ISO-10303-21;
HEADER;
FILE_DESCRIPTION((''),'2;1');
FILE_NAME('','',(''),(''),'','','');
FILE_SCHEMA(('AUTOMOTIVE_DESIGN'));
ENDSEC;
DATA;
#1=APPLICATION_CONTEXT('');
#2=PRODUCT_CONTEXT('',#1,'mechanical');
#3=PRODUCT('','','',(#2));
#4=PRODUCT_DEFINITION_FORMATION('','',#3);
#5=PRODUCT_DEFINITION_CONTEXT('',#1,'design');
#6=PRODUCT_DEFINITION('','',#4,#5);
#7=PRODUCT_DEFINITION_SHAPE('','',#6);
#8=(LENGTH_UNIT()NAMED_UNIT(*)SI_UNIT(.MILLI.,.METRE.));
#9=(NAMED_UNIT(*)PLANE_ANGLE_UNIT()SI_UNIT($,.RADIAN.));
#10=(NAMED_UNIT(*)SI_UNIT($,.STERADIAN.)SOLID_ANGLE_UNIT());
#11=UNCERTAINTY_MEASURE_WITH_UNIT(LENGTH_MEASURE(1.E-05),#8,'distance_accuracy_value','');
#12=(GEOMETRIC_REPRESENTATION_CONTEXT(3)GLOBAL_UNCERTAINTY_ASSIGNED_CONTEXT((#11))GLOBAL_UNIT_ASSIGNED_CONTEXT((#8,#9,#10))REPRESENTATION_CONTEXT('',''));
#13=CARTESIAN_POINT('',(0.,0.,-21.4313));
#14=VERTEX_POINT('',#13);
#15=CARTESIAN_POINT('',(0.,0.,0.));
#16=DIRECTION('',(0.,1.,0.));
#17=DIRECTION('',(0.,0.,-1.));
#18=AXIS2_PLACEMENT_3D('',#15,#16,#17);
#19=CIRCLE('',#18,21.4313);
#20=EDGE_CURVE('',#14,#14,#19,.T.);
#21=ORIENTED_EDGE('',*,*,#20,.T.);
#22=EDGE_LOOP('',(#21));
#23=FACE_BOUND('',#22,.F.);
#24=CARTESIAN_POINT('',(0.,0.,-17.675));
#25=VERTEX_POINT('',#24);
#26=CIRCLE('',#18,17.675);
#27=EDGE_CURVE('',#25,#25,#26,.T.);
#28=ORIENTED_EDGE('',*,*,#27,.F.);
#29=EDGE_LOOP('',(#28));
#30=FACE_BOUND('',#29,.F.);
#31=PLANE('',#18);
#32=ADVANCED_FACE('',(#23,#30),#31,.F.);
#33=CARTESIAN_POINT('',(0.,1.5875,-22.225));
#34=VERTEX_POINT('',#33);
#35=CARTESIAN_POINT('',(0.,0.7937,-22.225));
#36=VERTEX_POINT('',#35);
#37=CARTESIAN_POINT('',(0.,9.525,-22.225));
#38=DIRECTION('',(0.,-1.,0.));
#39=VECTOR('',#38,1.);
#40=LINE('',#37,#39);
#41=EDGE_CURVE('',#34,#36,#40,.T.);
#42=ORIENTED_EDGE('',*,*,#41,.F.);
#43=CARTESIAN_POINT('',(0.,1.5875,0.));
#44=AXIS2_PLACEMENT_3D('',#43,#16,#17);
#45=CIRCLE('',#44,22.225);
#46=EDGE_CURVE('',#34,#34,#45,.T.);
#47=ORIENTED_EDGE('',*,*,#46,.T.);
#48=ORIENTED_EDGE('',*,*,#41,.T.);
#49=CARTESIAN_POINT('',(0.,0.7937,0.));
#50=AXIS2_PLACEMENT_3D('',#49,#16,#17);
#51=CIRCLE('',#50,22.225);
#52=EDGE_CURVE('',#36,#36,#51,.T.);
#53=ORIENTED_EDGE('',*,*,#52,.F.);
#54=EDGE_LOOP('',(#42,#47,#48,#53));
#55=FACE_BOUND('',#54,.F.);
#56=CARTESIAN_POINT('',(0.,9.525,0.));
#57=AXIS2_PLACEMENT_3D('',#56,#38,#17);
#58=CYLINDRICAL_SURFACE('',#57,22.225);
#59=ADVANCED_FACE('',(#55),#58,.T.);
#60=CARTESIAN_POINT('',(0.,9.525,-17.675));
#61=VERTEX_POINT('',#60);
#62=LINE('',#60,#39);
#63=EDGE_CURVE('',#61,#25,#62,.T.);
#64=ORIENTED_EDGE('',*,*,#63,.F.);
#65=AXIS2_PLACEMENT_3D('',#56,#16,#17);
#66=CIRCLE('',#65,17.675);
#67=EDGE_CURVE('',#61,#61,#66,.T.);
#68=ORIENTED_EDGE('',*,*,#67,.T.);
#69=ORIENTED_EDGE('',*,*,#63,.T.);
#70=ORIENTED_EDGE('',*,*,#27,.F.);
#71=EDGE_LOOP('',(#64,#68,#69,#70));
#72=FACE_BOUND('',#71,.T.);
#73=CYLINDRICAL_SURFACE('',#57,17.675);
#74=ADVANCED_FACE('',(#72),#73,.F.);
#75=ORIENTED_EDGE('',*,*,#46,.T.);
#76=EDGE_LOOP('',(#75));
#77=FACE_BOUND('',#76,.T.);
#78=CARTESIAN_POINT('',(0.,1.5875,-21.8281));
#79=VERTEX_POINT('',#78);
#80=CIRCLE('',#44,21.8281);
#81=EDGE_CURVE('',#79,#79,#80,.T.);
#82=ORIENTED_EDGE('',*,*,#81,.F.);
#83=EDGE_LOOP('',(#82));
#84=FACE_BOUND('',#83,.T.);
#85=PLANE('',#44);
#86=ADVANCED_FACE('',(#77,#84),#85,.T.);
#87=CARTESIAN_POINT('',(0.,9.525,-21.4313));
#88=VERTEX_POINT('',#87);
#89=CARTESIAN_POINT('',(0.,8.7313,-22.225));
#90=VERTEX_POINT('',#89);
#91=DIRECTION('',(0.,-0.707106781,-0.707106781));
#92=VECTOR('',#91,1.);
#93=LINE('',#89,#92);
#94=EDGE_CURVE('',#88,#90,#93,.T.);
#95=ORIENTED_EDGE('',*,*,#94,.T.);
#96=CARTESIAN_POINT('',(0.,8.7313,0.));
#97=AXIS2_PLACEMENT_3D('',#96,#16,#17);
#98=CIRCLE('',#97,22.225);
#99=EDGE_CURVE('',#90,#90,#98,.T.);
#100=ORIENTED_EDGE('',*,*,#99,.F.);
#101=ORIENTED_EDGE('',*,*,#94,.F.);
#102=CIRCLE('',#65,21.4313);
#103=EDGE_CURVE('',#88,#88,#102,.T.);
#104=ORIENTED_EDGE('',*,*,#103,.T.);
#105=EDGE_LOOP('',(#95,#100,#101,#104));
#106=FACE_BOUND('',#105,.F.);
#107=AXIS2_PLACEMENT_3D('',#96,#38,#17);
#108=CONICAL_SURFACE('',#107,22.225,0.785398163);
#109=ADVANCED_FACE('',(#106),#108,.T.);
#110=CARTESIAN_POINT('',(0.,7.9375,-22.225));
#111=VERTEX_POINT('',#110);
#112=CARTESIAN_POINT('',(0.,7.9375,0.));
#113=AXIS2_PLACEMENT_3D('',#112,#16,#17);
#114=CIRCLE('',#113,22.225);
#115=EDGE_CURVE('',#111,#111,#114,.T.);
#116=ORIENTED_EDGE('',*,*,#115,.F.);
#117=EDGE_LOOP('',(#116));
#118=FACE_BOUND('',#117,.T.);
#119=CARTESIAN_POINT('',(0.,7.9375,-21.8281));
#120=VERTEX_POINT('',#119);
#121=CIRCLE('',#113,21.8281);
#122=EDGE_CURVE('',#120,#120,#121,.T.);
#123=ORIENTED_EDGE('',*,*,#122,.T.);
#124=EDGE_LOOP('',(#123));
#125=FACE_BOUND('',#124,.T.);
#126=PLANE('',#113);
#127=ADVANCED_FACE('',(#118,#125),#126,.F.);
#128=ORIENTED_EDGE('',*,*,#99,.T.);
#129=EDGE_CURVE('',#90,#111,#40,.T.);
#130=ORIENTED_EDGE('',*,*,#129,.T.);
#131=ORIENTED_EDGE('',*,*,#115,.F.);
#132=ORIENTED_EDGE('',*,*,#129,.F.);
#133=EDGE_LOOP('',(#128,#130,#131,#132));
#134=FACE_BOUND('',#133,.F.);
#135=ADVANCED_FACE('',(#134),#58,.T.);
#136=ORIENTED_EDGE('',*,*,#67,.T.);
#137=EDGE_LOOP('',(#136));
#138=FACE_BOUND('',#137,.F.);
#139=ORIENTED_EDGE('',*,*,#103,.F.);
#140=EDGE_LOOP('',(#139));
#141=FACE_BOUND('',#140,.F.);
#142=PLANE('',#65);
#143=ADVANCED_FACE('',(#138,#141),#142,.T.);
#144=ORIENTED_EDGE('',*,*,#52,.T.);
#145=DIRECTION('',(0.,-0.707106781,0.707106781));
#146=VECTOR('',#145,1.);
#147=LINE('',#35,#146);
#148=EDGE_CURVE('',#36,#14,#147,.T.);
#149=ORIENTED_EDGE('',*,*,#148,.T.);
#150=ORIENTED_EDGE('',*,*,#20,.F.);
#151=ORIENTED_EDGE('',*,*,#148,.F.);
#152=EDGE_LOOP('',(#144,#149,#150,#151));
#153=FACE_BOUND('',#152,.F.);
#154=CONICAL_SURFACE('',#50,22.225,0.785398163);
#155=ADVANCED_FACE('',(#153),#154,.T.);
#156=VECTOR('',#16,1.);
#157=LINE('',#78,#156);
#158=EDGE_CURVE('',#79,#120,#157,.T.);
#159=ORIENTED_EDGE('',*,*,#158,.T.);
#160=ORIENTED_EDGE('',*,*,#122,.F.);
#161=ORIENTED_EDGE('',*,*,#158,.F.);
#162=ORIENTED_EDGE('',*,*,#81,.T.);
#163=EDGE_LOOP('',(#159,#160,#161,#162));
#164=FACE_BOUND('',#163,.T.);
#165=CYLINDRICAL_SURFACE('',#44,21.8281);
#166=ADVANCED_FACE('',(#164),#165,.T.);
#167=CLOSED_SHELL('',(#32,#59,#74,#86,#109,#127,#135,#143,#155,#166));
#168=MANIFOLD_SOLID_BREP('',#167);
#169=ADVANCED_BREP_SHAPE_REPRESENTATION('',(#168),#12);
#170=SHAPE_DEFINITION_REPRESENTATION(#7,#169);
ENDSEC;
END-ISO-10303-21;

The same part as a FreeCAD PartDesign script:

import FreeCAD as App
import Part
import Sketcher
from FreeCAD import Vector
Q = App.Units.Quantity


def edges_at(feature, points):
    """Names of the edges that pass closest to the given points."""
    edges = feature.Shape.Edges
    near = lambda p: min(range(len(edges)), key=lambda i: edges[i].distToShape(Part.Vertex(*p))[0])
    return sorted({f"Edge{near(p) + 1}" for p in points})

doc = App.newDocument("Part")
body = doc.addObject("PartDesign::Body", "Body")

sketch1 = body.newObject("Sketcher::SketchObject", "Sketch")
sketch1.AttachmentSupport = (doc.getObject("YZ_Plane"), [""])
sketch1.MapMode = "FlatFace"
sketch1.addGeometry([
    Part.LineSegment(Vector(9.525, -17.675, 0), Vector(0, -17.675, 0)),
    Part.LineSegment(Vector(0, -17.675, 0), Vector(0, -22.225, 0)),
    Part.LineSegment(Vector(0, -22.225, 0), Vector(1.5875, -22.225, 0)),
    Part.LineSegment(Vector(1.5875, -22.225, 0), Vector(1.5875, -21.8281, 0)),
    Part.LineSegment(Vector(1.5875, -21.8281, 0), Vector(7.9375, -21.8281, 0)),
    Part.LineSegment(Vector(7.9375, -21.8281, 0), Vector(7.9375, -22.225, 0)),
    Part.LineSegment(Vector(7.9375, -22.225, 0), Vector(9.525, -22.225, 0)),
    Part.LineSegment(Vector(9.525, -22.225, 0), Vector(9.525, -17.675, 0)),
], False)
sketch1.addConstraint([
    Sketcher.Constraint("Coincident", 0, 2, 1, 1),
    Sketcher.Constraint("Coincident", 1, 2, 2, 1),
    Sketcher.Constraint("Coincident", 2, 2, 3, 1),
    Sketcher.Constraint("Coincident", 3, 2, 4, 1),
    Sketcher.Constraint("Coincident", 4, 2, 5, 1),
    Sketcher.Constraint("Coincident", 5, 2, 6, 1),
    Sketcher.Constraint("Coincident", 6, 2, 7, 1),
    Sketcher.Constraint("Coincident", 7, 2, 0, 1),
    Sketcher.Constraint("Horizontal", 0),
    Sketcher.Constraint("Vertical", 1),
    Sketcher.Constraint("Horizontal", 2),
    Sketcher.Constraint("Vertical", 3),
    Sketcher.Constraint("Horizontal", 4),
    Sketcher.Constraint("Vertical", 5),
    Sketcher.Constraint("Horizontal", 6),
    Sketcher.Constraint("Vertical", 7),
    Sketcher.Constraint("PointOnObject", 0, 2, -2),
    Sketcher.Constraint("Horizontal", 2, 2, 5, 2),
    Sketcher.Constraint("Equal", 2, 6),
    Sketcher.Constraint("DistanceX", 4, 1, 4, 2, Q("0.25 in")),
    Sketcher.Constraint("DistanceX", 0, 2, 0, 1, Q("0.375 in")),
    Sketcher.Constraint("DistanceY", 1, 2, -1, 1, Q("0.875 in")),
    Sketcher.Constraint("DistanceY", 3, 1, 3, 2, Q("0.0156299 in")),
    Sketcher.Constraint("DistanceY", 0, 2, -1, 1, Q("17.675 mm")),
])
revolution = body.newObject("PartDesign::Revolution", "Revolution")
revolution.Profile = sketch1
revolution.ReferenceAxis = (sketch1, ["H_Axis"])
revolution.Angle = 360
doc.recompute()

chamfer = body.newObject("PartDesign::Chamfer", "Chamfer")
chamfer.Base = (revolution, edges_at(revolution, [(0, 9.525, 22.225), (0, 0, 22.225)]))
chamfer.Size = Q("0.031248 in")

doc.recompute()
